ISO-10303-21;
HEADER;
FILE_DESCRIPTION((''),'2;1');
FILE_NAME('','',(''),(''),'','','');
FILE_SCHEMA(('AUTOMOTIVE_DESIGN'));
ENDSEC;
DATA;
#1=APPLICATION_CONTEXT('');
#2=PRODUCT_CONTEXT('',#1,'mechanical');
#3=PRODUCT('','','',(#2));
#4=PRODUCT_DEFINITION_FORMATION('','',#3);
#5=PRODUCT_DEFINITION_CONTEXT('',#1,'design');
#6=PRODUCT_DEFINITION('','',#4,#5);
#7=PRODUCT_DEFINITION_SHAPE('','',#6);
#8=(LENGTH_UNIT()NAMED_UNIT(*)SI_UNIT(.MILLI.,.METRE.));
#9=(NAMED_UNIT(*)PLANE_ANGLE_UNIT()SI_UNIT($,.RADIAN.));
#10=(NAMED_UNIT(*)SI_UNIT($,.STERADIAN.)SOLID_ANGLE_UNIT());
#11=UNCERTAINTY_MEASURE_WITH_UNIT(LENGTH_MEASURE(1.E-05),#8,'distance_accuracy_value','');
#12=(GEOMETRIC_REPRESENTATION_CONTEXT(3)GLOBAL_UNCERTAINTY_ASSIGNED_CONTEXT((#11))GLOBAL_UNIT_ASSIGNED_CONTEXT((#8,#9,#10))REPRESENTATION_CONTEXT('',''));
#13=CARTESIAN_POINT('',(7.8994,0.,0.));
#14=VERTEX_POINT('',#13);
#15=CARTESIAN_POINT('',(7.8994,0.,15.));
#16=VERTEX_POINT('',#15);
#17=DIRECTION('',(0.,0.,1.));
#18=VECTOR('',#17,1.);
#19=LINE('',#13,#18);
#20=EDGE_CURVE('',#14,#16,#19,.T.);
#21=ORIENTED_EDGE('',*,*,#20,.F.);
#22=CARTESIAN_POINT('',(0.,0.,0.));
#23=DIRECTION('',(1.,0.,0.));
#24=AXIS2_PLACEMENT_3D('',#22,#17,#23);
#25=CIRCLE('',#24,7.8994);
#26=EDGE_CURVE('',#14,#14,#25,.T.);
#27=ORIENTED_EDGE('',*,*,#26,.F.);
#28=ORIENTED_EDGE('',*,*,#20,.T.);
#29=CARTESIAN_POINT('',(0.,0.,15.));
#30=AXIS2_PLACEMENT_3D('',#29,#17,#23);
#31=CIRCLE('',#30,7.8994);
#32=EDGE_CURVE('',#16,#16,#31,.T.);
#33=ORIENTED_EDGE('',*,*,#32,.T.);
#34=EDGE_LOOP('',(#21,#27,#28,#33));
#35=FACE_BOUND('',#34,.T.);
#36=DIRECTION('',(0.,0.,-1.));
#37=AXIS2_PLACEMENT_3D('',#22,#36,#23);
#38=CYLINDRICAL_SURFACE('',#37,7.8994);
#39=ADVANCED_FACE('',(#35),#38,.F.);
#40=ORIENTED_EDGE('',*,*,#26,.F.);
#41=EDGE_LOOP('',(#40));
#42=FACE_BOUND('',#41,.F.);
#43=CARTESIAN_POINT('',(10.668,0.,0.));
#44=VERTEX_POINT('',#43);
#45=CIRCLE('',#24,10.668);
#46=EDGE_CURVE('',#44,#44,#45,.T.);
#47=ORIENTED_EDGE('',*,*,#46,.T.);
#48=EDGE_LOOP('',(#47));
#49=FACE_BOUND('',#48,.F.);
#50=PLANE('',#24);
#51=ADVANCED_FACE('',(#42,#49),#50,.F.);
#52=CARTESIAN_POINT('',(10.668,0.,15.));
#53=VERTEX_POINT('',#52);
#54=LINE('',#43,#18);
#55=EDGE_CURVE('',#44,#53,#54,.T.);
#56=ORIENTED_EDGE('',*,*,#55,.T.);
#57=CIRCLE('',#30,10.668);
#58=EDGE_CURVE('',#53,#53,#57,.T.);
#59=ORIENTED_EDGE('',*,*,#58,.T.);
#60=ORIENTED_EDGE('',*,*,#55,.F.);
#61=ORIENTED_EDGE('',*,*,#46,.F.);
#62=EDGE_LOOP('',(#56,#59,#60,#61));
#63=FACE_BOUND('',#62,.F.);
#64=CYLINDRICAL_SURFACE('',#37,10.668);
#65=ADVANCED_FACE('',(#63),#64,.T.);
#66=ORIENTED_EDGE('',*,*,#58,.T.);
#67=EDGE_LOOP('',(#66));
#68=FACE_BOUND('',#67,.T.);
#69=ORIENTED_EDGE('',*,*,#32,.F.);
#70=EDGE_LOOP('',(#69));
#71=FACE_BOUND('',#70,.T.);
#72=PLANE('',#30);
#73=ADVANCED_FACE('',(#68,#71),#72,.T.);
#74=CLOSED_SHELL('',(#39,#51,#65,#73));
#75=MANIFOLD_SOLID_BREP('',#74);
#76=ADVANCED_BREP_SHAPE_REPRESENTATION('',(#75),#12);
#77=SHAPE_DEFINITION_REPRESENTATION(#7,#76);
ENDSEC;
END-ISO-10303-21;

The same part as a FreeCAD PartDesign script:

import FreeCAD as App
import Part
import Sketcher

V = App.Vector
Q = App.Units.Quantity

doc = App.newDocument("Part")
body = doc.addObject("PartDesign::Body", "Body")

# Sketch on XY plane
sketch1 = body.newObject("Sketcher::SketchObject", "Sketch")
sketch1.AttachmentSupport = (doc.getObject("XY_Plane"), [""])
sketch1.MapMode = "FlatFace"
sketch1.addGeometry([
    Part.Circle(V(0, 0, 0), V(0, 0, 1), 10.668),
    Part.Circle(V(0, 0, 0), V(0, 0, 1), 7.8994),
], False)
sketch1.addConstraint([
    Sketcher.Constraint("Coincident", 0, 3, -1, 1),
    Sketcher.Constraint("Coincident", 1, 3, -1, 1),
    Sketcher.Constraint("Diameter", 0, Q("0.84 in")),
    Sketcher.Constraint("Diameter", 1, Q("0.622 in")),
])
pad1 = body.newObject("PartDesign::Pad", "Pad")
pad1.Profile = sketch1
pad1.Length = 15

doc.recompute()
